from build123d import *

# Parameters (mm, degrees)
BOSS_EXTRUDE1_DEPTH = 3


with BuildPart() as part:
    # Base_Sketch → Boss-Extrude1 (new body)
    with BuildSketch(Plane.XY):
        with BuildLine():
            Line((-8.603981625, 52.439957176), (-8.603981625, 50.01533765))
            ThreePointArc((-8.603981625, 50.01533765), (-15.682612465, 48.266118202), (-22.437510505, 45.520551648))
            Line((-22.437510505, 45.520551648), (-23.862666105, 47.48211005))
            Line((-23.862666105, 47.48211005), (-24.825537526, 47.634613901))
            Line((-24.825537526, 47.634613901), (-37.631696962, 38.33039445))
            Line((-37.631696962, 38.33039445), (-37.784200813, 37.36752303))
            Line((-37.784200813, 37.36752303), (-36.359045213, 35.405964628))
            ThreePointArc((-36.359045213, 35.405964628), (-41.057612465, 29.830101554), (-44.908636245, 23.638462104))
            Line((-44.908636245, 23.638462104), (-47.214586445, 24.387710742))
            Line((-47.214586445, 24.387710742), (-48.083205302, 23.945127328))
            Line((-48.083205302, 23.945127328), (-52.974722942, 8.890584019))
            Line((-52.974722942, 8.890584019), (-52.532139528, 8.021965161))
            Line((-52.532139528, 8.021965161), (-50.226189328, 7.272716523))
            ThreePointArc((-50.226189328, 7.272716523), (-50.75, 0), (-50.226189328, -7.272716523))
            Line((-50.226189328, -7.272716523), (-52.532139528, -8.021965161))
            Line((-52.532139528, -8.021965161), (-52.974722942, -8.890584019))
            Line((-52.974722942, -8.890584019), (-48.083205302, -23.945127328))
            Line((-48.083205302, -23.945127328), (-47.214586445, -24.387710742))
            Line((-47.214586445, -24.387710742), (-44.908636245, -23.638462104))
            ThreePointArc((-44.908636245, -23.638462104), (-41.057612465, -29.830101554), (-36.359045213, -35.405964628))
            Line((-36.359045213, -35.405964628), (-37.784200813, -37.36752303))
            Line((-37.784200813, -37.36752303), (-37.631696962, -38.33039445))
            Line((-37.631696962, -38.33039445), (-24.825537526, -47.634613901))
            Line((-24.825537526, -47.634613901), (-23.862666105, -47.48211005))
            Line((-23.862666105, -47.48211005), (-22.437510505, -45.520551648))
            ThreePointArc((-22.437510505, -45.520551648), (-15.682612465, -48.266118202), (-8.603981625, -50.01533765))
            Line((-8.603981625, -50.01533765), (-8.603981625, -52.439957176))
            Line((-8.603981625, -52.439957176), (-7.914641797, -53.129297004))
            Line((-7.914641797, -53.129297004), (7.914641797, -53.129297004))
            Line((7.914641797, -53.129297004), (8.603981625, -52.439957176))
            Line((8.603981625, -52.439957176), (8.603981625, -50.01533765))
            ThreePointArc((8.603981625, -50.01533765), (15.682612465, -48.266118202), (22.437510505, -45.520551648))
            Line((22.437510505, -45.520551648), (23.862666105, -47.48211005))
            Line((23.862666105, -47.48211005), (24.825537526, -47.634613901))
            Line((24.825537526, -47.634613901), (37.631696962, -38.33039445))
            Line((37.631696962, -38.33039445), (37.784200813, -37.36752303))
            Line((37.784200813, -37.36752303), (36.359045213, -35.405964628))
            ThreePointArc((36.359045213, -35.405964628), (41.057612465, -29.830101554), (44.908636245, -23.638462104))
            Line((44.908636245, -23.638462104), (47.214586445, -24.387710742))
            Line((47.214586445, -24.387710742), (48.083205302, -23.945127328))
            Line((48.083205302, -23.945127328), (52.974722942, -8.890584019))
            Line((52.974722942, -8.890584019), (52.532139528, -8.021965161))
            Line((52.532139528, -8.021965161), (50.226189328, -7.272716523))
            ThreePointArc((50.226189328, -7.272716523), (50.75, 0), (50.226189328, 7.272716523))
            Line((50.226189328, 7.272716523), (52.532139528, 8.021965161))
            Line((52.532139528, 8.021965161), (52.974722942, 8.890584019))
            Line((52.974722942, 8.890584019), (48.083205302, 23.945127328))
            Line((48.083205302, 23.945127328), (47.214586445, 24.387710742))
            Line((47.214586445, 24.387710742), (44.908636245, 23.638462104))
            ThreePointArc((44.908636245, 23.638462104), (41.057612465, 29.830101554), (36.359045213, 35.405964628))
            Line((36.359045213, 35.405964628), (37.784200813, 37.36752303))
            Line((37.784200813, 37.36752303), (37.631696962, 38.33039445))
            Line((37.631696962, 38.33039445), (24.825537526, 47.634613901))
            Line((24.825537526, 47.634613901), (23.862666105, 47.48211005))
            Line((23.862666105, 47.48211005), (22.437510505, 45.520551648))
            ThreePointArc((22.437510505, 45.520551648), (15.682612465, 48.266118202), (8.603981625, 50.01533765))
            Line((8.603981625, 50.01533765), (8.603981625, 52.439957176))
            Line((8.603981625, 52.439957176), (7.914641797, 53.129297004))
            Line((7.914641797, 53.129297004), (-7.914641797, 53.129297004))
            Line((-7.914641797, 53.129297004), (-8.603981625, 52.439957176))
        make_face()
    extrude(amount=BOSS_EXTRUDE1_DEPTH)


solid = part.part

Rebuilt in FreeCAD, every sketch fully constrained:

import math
import FreeCAD as App
import Part
import Sketcher

V = App.Vector
Q = App.Units.Quantity

doc = App.newDocument("Part")
body = doc.addObject("PartDesign::Body", "Body")

# Sketch on XY plane
sketch1 = doc.addObject("Sketcher::SketchObject", "Sketch")
body.addObject(sketch1)
sketch1.AttachmentSupport = (doc.XY_Plane, [""])
sketch1.MapMode = "FlatFace"
sketch1.addGeometry([
    Part.LineSegment(V(-8.6, 52.4, 0), V(-8.6, 50, 0)),  # 0
    Part.ArcOfCircle(Part.Circle(V(0, 0, 0), V(0, 0, 1), 50.8), math.radians(99.76), math.radians(116.24)),  # 1
    Part.LineSegment(V(-22.4, 45.5, 0), V(-23.9, 47.5, 0)),  # 2
    Part.LineSegment(V(-23.9, 47.5, 0), V(-24.8, 47.6, 0)),  # 3
    Part.LineSegment(V(-24.8, 47.6, 0), V(-37.6, 38.3, 0)),  # 4
    Part.LineSegment(V(-37.6, 38.3, 0), V(-37.8, 37.4, 0)),  # 5
    Part.LineSegment(V(-37.8, 37.4, 0), V(-36.4, 35.4, 0)),  # 6
    Part.ArcOfCircle(Part.Circle(V(0, 0, 0), V(0, 0, 1), 50.7), math.radians(135.76), math.radians(152.24)),  # 7
    Part.LineSegment(V(-44.9, 23.6, 0), V(-47.2, 24.4, 0)),  # 8
    Part.LineSegment(V(-47.2, 24.4, 0), V(-48.1, 23.9, 0)),  # 9
    Part.LineSegment(V(-48.1, 23.9, 0), V(-53, 8.9, 0)),  # 10
    Part.LineSegment(V(-53, 8.9, 0), V(-52.5, 8, 0)),  # 11
    Part.LineSegment(V(-52.5, 8, 0), V(-50.2, 7.3, 0)),  # 12
    Part.ArcOfCircle(Part.Circle(V(0, 0, 0), V(0, 0, 1), 50.8), math.radians(171.76), math.radians(188.24)),  # 13
    Part.LineSegment(V(-50.2, -7.3, 0), V(-52.5, -8, 0)),  # 14
    Part.LineSegment(V(-52.5, -8, 0), V(-53, -8.9, 0)),  # 15
    Part.LineSegment(V(-53, -8.9, 0), V(-48.1, -23.9, 0)),  # 16
    Part.LineSegment(V(-48.1, -23.9, 0), V(-47.2, -24.4, 0)),  # 17
    Part.LineSegment(V(-47.2, -24.4, 0), V(-44.9, -23.6, 0)),  # 18
    Part.ArcOfCircle(Part.Circle(V(0, 0, 0), V(0, 0, 1), 50.7), math.radians(-152.24), math.radians(-135.76)),  # 19
    Part.LineSegment(V(-36.4, -35.4, 0), V(-37.8, -37.4, 0)),  # 20
    Part.LineSegment(V(-37.8, -37.4, 0), V(-37.6, -38.3, 0)),  # 21
    Part.LineSegment(V(-37.6, -38.3, 0), V(-24.8, -47.6, 0)),  # 22
    Part.LineSegment(V(-24.8, -47.6, 0), V(-23.9, -47.5, 0)),  # 23
    Part.LineSegment(V(-23.9, -47.5, 0), V(-22.4, -45.5, 0)),  # 24
    Part.ArcOfCircle(Part.Circle(V(0, 0, 0), V(0, 0, 1), 50.8), math.radians(-116.24), math.radians(-99.76)),  # 25
    Part.LineSegment(V(-8.6, -50, 0), V(-8.6, -52.4, 0)),  # 26
    Part.LineSegment(V(-8.6, -52.4, 0), V(-7.9, -53.1, 0)),  # 27
    Part.LineSegment(V(-7.9, -53.1, 0), V(7.9, -53.1, 0)),  # 28
    Part.LineSegment(V(7.9, -53.1, 0), V(8.6, -52.4, 0)),  # 29
    Part.LineSegment(V(8.6, -52.4, 0), V(8.6, -50, 0)),  # 30
    Part.ArcOfCircle(Part.Circle(V(0, 0, 0), V(0, 0, 1), 50.8), math.radians(-80.24), math.radians(-63.76)),  # 31
    Part.LineSegment(V(22.4, -45.5, 0), V(23.9, -47.5, 0)),  # 32
    Part.LineSegment(V(23.9, -47.5, 0), V(24.8, -47.6, 0)),  # 33
    Part.LineSegment(V(24.8, -47.6, 0), V(37.6, -38.3, 0)),  # 34
    Part.LineSegment(V(37.6, -38.3, 0), V(37.8, -37.4, 0)),  # 35
    Part.LineSegment(V(37.8, -37.4, 0), V(36.4, -35.4, 0)),  # 36
    Part.ArcOfCircle(Part.Circle(V(0, 0, 0), V(0, 0, 1), 50.7), math.radians(-44.24), math.radians(-27.76)),  # 37
    Part.LineSegment(V(44.9, -23.6, 0), V(47.2, -24.4, 0)),  # 38
    Part.LineSegment(V(47.2, -24.4, 0), V(48.1, -23.9, 0)),  # 39
    Part.LineSegment(V(48.1, -23.9, 0), V(53, -8.9, 0)),  # 40
    Part.LineSegment(V(53, -8.9, 0), V(52.5, -8, 0)),  # 41
    Part.LineSegment(V(52.5, -8, 0), V(50.2, -7.3, 0)),  # 42
    Part.ArcOfCircle(Part.Circle(V(0, 0, 0), V(0, 0, 1), 50.8), math.radians(-8.24), math.radians(8.24)),  # 43
    Part.LineSegment(V(50.2, 7.3, 0), V(52.5, 8, 0)),  # 44
    Part.LineSegment(V(52.5, 8, 0), V(53, 8.9, 0)),  # 45
    Part.LineSegment(V(53, 8.9, 0), V(48.1, 23.9, 0)),  # 46
    Part.LineSegment(V(48.1, 23.9, 0), V(47.2, 24.4, 0)),  # 47
    Part.LineSegment(V(47.2, 24.4, 0), V(44.9, 23.6, 0)),  # 48
    Part.ArcOfCircle(Part.Circle(V(0, 0, 0), V(0, 0, 1), 50.7), math.radians(27.76), math.radians(44.24)),  # 49
    Part.LineSegment(V(36.4, 35.4, 0), V(37.8, 37.4, 0)),  # 50
    Part.LineSegment(V(37.8, 37.4, 0), V(37.6, 38.3, 0)),  # 51
    Part.LineSegment(V(37.6, 38.3, 0), V(24.8, 47.6, 0)),  # 52
    Part.LineSegment(V(24.8, 47.6, 0), V(23.9, 47.5, 0)),  # 53
    Part.LineSegment(V(23.9, 47.5, 0), V(22.4, 45.5, 0)),  # 54
    Part.ArcOfCircle(Part.Circle(V(0, 0, 0), V(0, 0, 1), 50.8), math.radians(63.76), math.radians(80.24)),  # 55
    Part.LineSegment(V(8.6, 50, 0), V(8.6, 52.4, 0)),  # 56
    Part.LineSegment(V(8.6, 52.4, 0), V(7.9, 53.1, 0)),  # 57
    Part.LineSegment(V(7.9, 53.1, 0), V(-7.9, 53.1, 0)),  # 58
    Part.LineSegment(V(-7.9, 53.1, 0), V(-8.6, 52.4, 0)),  # 59
], False)
sketch1.addConstraint([
    Sketcher.Constraint("Coincident", 0, 2, 1, 1),
    Sketcher.Constraint("Coincident", 1, 2, 2, 1),
    Sketcher.Constraint("Coincident", 2, 2, 3, 1),
    Sketcher.Constraint("Coincident", 3, 2, 4, 1),
    Sketcher.Constraint("Coincident", 4, 2, 5, 1),
    Sketcher.Constraint("Coincident", 5, 2, 6, 1),
    Sketcher.Constraint("Coincident", 6, 2, 7, 1),
    Sketcher.Constraint("Coincident", 7, 2, 8, 1),
    Sketcher.Constraint("Coincident", 8, 2, 9, 1),
    Sketcher.Constraint("Coincident", 9, 2, 10, 1),
    Sketcher.Constraint("Coincident", 10, 2, 11, 1),
    Sketcher.Constraint("Coincident", 11, 2, 12, 1),
    Sketcher.Constraint("Coincident", 12, 2, 13, 1),
    Sketcher.Constraint("Coincident", 13, 2, 14, 1),
    Sketcher.Constraint("Coincident", 14, 2, 15, 1),
    Sketcher.Constraint("Coincident", 15, 2, 16, 1),
    Sketcher.Constraint("Coincident", 16, 2, 17, 1),
    Sketcher.Constraint("Coincident", 17, 2, 18, 1),
    Sketcher.Constraint("Coincident", 18, 2, 19, 1),
    Sketcher.Constraint("Coincident", 19, 2, 20, 1),
    Sketcher.Constraint("Coincident", 20, 2, 21, 1),
    Sketcher.Constraint("Coincident", 21, 2, 22, 1),
    Sketcher.Constraint("Coincident", 22, 2, 23, 1),
    Sketcher.Constraint("Coincident", 23, 2, 24, 1),
    Sketcher.Constraint("Coincident", 24, 2, 25, 1),
    Sketcher.Constraint("Coincident", 25, 2, 26, 1),
    Sketcher.Constraint("Coincident", 26, 2, 27, 1),
    Sketcher.Constraint("Coincident", 27, 2, 28, 1),
    Sketcher.Constraint("Coincident", 28, 2, 29, 1),
    Sketcher.Constraint("Coincident", 29, 2, 30, 1),
    Sketcher.Constraint("Coincident", 30, 2, 31, 1),
    Sketcher.Constraint("Coincident", 31, 2, 32, 1),
    Sketcher.Constraint("Coincident", 32, 2, 33, 1),
    Sketcher.Constraint("Coincident", 33, 2, 34, 1),
    Sketcher.Constraint("Coincident", 34, 2, 35, 1),
    Sketcher.Constraint("Coincident", 35, 2, 36, 1),
    Sketcher.Constraint("Coincident", 36, 2, 37, 1),
    Sketcher.Constraint("Coincident", 37, 2, 38, 1),
    Sketcher.Constraint("Coincident", 38, 2, 39, 1),
    Sketcher.Constraint("Coincident", 39, 2, 40, 1),
    Sketcher.Constraint("Coincident", 40, 2, 41, 1),
    Sketcher.Constraint("Coincident", 41, 2, 42, 1),
    Sketcher.Constraint("Coincident", 42, 2, 43, 1),
    Sketcher.Constraint("Coincident", 43, 2, 44, 1),
    Sketcher.Constraint("Coincident", 44, 2, 45, 1),
    Sketcher.Constraint("Coincident", 45, 2, 46, 1),
    Sketcher.Constraint("Coincident", 46, 2, 47, 1),
    Sketcher.Constraint("Coincident", 47, 2, 48, 1),
    Sketcher.Constraint("Coincident", 48, 2, 49, 1),
    Sketcher.Constraint("Coincident", 49, 2, 50, 1),
    Sketcher.Constraint("Coincident", 50, 2, 51, 1),
    Sketcher.Constraint("Coincident", 51, 2, 52, 1),
    Sketcher.Constraint("Coincident", 52, 2, 53, 1),
    Sketcher.Constraint("Coincident", 53, 2, 54, 1),
    Sketcher.Constraint("Coincident", 54, 2, 55, 1),
    Sketcher.Constraint("Coincident", 55, 2, 56, 1),
    Sketcher.Constraint("Coincident", 56, 2, 57, 1),
    Sketcher.Constraint("Coincident", 57, 2, 58, 1),
    Sketcher.Constraint("Coincident", 58, 2, 59, 1),
    Sketcher.Constraint("Coincident", 59, 2, 0, 1),
    Sketcher.Constraint("Vertical", 0),
    Sketcher.Constraint("Vertical", 26),
    Sketcher.Constraint("Horizontal", 28),
    Sketcher.Constraint("Vertical", 30),
    Sketcher.Constraint("Vertical", 56),
    Sketcher.Constraint("Horizontal", 58),
    Sketcher.Constraint("Coincident", 1, 3, -1, 1),
    Sketcher.Constraint("Coincident", 7, 3, -1, 1),
    Sketcher.Constraint("Coincident", 13, 3, -1, 1),
    Sketcher.Constraint("Coincident", 19, 3, -1, 1),
    Sketcher.Constraint("Coincident", 25, 3, -1, 1),
    Sketcher.Constraint("Coincident", 31, 3, -1, 1),
    Sketcher.Constraint("Coincident", 37, 3, -1, 1),
    Sketcher.Constraint("Coincident", 43, 3, -1, 1),
    Sketcher.Constraint("Coincident", 49, 3, -1, 1),
    Sketcher.Constraint("Coincident", 55, 3, -1, 1),
    Sketcher.Constraint("Equal", 1, 7),
    Sketcher.Constraint("Equal", 7, 13),
    Sketcher.Constraint("Equal", 13, 19),
    Sketcher.Constraint("Equal", 19, 25),
    Sketcher.Constraint("Equal", 25, 31),
    Sketcher.Constraint("Equal", 31, 37),
    Sketcher.Constraint("Equal", 37, 43),
    Sketcher.Constraint("Equal", 43, 49),
    Sketcher.Constraint("Equal", 49, 55),
    Sketcher.Constraint("Symmetric", 2, 2, 32, 2, -1, 1),
    Sketcher.Constraint("Symmetric", 3, 2, 33, 2, -1, 1),
    Sketcher.Constraint("Symmetric", 4, 2, 34, 2, -1, 1),
    Sketcher.Constraint("Symmetric", 5, 2, 35, 2, -1, 1),
    Sketcher.Constraint("Symmetric", 8, 2, 38, 2, -1, 1),
    Sketcher.Constraint("Symmetric", 9, 2, 39, 2, -1, 1),
    Sketcher.Constraint("Symmetric", 10, 2, 40, 2, -1, 1),
    Sketcher.Constraint("Symmetric", 11, 2, 41, 2, -1, 1),
    Sketcher.Constraint("Symmetric", 14, 2, 44, 2, -1, 1),
    Sketcher.Constraint("Symmetric", 15, 2, 45, 2, -1, 1),
    Sketcher.Constraint("Symmetric", 16, 2, 46, 2, -1, 1),
    Sketcher.Constraint("Symmetric", 17, 2, 47, 2, -1, 1),
    Sketcher.Constraint("Symmetric", 20, 2, 50, 2, -1, 1),
    Sketcher.Constraint("Symmetric", 21, 2, 51, 2, -1, 1),
    Sketcher.Constraint("Symmetric", 22, 2, 52, 2, -1, 1),
    Sketcher.Constraint("Symmetric", 23, 2, 53, 2, -1, 1),
    Sketcher.Constraint("Symmetric", 26, 2, 56, 2, -1, 1),
    Sketcher.Constraint("Symmetric", 27, 2, 57, 2, -1, 1),
    Sketcher.Constraint("Symmetric", 29, 2, 59, 2, -1, 1),
    Sketcher.Constraint("Symmetric", 26, 2, 29, 2, -2),
    Sketcher.Constraint("Symmetric", 23, 2, 32, 2, -2),
    Sketcher.Constraint("Symmetric", 22, 2, 33, 2, -2),
    Sketcher.Constraint("Symmetric", 21, 2, 34, 2, -2),
    Sketcher.Constraint("Symmetric", 20, 2, 35, 2, -2),
    Sketcher.Constraint("Symmetric", 17, 2, 38, 2, -2),
    Sketcher.Constraint("Symmetric", 16, 2, 39, 2, -2),
    Sketcher.Constraint("Symmetric", 15, 2, 40, 2, -2),
    Sketcher.Constraint("Symmetric", 14, 2, 41, 2, -2),
    Sketcher.Constraint("Perpendicular", 2, 4),
    Sketcher.Constraint("Perpendicular", 3, 5),
    Sketcher.Constraint("Perpendicular", 4, 6),
    Sketcher.Constraint("Perpendicular", 8, 10),
    Sketcher.Constraint("Perpendicular", 9, 11),
    Sketcher.Constraint("Perpendicular", 10, 12),
    Sketcher.Constraint("Perpendicular", 14, 16),
    Sketcher.Constraint("Perpendicular", 16, 18),
    Sketcher.Constraint("Perpendicular", 20, 22),
    Sketcher.Constraint("Perpendicular", 22, 24),
    Sketcher.Constraint("Perpendicular", 27, 29),
    Sketcher.Constraint("Parallel", 6, 32),
    Sketcher.Constraint("Perpendicular", 34, 36),
    Sketcher.Constraint("Parallel", 12, 38),
    Sketcher.Constraint("Perpendicular", 40, 42),
    Sketcher.Constraint("Parallel", 18, 44),
    Sketcher.Constraint("Perpendicular", 46, 48),
    Sketcher.Constraint("Parallel", 24, 50),
    Sketcher.Constraint("Perpendicular", 52, 54),
    Sketcher.Constraint("Perpendicular", 57, 59),
    Sketcher.Constraint("Vertical", 28, 2, 57, 2),
    Sketcher.Constraint("Equal", 3, 5),
    Sketcher.Constraint("Equal", 2, 6),
    Sketcher.Constraint("Equal", 6, 8),
    Sketcher.Constraint("Equal", 5, 9),
    Sketcher.Constraint("Equal", 4, 10),
    Sketcher.Constraint("Equal", 9, 11),
    Sketcher.Constraint("Equal", 8, 12),
    Sketcher.Constraint("Equal", 23, 27),
    Sketcher.Constraint("Angle", 2, Q("126 deg")),
    Sketcher.Constraint("Angle", 3, Q("171 deg")),
    Sketcher.Constraint("Angle", 8, Q("162 deg")),
    Sketcher.Constraint("Angle", 9, Q("-153 deg")),
    Sketcher.Constraint("Radius", 1, 50.75),
    Sketcher.Constraint("DistanceY", 0, 2, 0, 1, 2.42462),
    Sketcher.Constraint("DistanceX", 5, 2, -1, 1, 37.784201),
    Sketcher.Constraint("Distance", 2, 2.42462),
    Sketcher.Constraint("DistanceX", 28, 1, 28, 2, 15.829284),
    Sketcher.Constraint("DistanceX", 0, 2, -1, 1, 8.603982),
])
pad1 = doc.addObject("PartDesign::Pad", "Pad")
body.addObject(pad1)
pad1.Profile = sketch1
pad1.Length = 3

doc.recompute()
